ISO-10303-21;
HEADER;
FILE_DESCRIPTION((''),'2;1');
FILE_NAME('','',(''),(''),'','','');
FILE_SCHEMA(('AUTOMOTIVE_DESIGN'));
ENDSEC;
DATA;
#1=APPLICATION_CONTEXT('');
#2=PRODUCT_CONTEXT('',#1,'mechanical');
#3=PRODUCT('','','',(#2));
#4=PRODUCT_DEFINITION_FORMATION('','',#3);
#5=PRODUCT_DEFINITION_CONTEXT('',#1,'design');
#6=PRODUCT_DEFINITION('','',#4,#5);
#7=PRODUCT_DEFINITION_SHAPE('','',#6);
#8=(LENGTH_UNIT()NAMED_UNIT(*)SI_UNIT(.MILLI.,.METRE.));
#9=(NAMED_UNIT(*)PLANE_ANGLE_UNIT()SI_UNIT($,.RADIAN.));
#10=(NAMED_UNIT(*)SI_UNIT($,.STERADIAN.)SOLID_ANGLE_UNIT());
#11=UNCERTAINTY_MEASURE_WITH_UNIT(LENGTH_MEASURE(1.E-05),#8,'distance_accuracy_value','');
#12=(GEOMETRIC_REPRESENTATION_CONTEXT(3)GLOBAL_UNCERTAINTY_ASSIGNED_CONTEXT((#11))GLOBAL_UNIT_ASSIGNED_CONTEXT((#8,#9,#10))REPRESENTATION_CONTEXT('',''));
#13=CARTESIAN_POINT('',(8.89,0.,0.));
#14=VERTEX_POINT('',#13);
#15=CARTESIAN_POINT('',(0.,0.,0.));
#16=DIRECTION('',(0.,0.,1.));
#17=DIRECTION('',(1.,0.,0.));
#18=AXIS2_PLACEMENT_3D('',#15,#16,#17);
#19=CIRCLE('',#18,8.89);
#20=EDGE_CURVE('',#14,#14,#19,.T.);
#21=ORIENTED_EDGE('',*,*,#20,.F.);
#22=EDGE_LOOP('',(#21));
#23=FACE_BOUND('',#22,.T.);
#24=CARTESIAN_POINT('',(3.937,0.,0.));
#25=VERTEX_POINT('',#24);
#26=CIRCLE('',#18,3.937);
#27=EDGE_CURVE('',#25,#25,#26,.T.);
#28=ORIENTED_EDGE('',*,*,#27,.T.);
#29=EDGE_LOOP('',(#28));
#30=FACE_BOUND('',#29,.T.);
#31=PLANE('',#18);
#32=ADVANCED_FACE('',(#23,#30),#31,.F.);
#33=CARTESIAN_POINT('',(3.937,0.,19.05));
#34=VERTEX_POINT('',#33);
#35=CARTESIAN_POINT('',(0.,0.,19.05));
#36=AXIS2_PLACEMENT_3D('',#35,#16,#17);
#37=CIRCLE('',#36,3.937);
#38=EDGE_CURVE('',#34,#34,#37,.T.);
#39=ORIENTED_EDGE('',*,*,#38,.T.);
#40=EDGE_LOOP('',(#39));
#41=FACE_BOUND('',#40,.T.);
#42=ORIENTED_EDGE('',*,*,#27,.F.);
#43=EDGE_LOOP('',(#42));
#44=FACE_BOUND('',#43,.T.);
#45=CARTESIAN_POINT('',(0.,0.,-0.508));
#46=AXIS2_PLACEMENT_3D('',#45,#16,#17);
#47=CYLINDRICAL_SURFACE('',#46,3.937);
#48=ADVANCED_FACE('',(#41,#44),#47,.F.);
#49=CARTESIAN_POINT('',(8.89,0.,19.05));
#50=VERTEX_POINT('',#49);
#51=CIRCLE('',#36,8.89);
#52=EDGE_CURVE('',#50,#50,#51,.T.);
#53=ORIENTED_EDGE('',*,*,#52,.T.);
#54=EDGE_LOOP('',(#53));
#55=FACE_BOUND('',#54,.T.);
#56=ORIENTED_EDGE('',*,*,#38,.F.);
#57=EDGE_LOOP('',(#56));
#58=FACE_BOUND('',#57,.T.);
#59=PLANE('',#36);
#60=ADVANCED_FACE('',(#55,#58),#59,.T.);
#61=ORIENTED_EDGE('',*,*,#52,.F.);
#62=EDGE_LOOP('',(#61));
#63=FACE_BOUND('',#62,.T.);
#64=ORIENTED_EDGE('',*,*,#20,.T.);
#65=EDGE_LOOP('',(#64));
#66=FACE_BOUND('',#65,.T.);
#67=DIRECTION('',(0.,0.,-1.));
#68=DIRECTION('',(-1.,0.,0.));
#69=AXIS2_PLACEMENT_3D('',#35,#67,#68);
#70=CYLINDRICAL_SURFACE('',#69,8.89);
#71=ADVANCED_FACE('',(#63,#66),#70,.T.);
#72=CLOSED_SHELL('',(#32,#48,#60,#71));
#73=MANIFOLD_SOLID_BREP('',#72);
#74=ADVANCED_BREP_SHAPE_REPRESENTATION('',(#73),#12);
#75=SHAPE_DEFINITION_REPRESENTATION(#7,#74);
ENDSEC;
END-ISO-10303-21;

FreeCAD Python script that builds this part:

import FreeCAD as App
import Part
import Sketcher
from FreeCAD import Vector
Q = App.Units.Quantity

doc = App.newDocument("Part")
params = doc.addObject("Spreadsheet::Sheet", "Params")
for row, (alias, value) in enumerate([
    ("sketch1_diameter", "0.7 in"),
    ("pad1_length", "0.75 in"),
    ("sketch2_diameter", "0.31 in"),
    ("pocket1_length", "0.77 in"),
], start=1):
    params.set(f"A{row}", alias)
    params.set(f"B{row}", "=" + value)
    params.setAlias(f"B{row}", alias)

body = doc.addObject("PartDesign::Body", "Body")

# Sketch on XY plane
sketch1 = doc.addObject("Sketcher::SketchObject", "Sketch")
body.addObject(sketch1)
sketch1.AttachmentSupport = (doc.XY_Plane, [""])
sketch1.MapMode = "FlatFace"
sketch1.addGeometry(Part.Circle(Vector(0, 0, 0), Vector(0, 0, 1), 9), False)
sketch1.addConstraint([
    Sketcher.Constraint("Coincident", 0, 3, -1, 1),
    Sketcher.Constraint("Diameter", 0, Q("0.7 in")),
])
sketch1.setExpression("Constraints[1]", "Params.sketch1_diameter")
pad1 = doc.addObject("PartDesign::Pad", "Pad")
body.addObject(pad1)
pad1.Profile = sketch1
pad1.setExpression("Length", "Params.pad1_length")

# Sketch on XY plane
sketch2 = doc.addObject("Sketcher::SketchObject", "Sketch001")
body.addObject(sketch2)
sketch2.AttachmentSupport = (doc.XY_Plane, [""])
sketch2.MapMode = "FlatFace"
sketch2.AttachmentOffset = App.Placement(Vector(0, 0, 0.75 * 25.4), App.Rotation())
sketch2.addGeometry(Part.Circle(Vector(0, 0, 0), Vector(0, 0, 1), 3.9), False)
sketch2.addConstraint([
    Sketcher.Constraint("Coincident", 0, 3, -1, 1),
    Sketcher.Constraint("Diameter", 0, Q("0.31 in")),
])
sketch2.setExpression("Constraints[1]", "Params.sketch2_diameter")
pocket1 = doc.addObject("PartDesign::Pocket", "Pocket")
body.addObject(pocket1)
pocket1.Profile = sketch2
pocket1.setExpression("Length", "Params.pocket1_length")

doc.recompute()
